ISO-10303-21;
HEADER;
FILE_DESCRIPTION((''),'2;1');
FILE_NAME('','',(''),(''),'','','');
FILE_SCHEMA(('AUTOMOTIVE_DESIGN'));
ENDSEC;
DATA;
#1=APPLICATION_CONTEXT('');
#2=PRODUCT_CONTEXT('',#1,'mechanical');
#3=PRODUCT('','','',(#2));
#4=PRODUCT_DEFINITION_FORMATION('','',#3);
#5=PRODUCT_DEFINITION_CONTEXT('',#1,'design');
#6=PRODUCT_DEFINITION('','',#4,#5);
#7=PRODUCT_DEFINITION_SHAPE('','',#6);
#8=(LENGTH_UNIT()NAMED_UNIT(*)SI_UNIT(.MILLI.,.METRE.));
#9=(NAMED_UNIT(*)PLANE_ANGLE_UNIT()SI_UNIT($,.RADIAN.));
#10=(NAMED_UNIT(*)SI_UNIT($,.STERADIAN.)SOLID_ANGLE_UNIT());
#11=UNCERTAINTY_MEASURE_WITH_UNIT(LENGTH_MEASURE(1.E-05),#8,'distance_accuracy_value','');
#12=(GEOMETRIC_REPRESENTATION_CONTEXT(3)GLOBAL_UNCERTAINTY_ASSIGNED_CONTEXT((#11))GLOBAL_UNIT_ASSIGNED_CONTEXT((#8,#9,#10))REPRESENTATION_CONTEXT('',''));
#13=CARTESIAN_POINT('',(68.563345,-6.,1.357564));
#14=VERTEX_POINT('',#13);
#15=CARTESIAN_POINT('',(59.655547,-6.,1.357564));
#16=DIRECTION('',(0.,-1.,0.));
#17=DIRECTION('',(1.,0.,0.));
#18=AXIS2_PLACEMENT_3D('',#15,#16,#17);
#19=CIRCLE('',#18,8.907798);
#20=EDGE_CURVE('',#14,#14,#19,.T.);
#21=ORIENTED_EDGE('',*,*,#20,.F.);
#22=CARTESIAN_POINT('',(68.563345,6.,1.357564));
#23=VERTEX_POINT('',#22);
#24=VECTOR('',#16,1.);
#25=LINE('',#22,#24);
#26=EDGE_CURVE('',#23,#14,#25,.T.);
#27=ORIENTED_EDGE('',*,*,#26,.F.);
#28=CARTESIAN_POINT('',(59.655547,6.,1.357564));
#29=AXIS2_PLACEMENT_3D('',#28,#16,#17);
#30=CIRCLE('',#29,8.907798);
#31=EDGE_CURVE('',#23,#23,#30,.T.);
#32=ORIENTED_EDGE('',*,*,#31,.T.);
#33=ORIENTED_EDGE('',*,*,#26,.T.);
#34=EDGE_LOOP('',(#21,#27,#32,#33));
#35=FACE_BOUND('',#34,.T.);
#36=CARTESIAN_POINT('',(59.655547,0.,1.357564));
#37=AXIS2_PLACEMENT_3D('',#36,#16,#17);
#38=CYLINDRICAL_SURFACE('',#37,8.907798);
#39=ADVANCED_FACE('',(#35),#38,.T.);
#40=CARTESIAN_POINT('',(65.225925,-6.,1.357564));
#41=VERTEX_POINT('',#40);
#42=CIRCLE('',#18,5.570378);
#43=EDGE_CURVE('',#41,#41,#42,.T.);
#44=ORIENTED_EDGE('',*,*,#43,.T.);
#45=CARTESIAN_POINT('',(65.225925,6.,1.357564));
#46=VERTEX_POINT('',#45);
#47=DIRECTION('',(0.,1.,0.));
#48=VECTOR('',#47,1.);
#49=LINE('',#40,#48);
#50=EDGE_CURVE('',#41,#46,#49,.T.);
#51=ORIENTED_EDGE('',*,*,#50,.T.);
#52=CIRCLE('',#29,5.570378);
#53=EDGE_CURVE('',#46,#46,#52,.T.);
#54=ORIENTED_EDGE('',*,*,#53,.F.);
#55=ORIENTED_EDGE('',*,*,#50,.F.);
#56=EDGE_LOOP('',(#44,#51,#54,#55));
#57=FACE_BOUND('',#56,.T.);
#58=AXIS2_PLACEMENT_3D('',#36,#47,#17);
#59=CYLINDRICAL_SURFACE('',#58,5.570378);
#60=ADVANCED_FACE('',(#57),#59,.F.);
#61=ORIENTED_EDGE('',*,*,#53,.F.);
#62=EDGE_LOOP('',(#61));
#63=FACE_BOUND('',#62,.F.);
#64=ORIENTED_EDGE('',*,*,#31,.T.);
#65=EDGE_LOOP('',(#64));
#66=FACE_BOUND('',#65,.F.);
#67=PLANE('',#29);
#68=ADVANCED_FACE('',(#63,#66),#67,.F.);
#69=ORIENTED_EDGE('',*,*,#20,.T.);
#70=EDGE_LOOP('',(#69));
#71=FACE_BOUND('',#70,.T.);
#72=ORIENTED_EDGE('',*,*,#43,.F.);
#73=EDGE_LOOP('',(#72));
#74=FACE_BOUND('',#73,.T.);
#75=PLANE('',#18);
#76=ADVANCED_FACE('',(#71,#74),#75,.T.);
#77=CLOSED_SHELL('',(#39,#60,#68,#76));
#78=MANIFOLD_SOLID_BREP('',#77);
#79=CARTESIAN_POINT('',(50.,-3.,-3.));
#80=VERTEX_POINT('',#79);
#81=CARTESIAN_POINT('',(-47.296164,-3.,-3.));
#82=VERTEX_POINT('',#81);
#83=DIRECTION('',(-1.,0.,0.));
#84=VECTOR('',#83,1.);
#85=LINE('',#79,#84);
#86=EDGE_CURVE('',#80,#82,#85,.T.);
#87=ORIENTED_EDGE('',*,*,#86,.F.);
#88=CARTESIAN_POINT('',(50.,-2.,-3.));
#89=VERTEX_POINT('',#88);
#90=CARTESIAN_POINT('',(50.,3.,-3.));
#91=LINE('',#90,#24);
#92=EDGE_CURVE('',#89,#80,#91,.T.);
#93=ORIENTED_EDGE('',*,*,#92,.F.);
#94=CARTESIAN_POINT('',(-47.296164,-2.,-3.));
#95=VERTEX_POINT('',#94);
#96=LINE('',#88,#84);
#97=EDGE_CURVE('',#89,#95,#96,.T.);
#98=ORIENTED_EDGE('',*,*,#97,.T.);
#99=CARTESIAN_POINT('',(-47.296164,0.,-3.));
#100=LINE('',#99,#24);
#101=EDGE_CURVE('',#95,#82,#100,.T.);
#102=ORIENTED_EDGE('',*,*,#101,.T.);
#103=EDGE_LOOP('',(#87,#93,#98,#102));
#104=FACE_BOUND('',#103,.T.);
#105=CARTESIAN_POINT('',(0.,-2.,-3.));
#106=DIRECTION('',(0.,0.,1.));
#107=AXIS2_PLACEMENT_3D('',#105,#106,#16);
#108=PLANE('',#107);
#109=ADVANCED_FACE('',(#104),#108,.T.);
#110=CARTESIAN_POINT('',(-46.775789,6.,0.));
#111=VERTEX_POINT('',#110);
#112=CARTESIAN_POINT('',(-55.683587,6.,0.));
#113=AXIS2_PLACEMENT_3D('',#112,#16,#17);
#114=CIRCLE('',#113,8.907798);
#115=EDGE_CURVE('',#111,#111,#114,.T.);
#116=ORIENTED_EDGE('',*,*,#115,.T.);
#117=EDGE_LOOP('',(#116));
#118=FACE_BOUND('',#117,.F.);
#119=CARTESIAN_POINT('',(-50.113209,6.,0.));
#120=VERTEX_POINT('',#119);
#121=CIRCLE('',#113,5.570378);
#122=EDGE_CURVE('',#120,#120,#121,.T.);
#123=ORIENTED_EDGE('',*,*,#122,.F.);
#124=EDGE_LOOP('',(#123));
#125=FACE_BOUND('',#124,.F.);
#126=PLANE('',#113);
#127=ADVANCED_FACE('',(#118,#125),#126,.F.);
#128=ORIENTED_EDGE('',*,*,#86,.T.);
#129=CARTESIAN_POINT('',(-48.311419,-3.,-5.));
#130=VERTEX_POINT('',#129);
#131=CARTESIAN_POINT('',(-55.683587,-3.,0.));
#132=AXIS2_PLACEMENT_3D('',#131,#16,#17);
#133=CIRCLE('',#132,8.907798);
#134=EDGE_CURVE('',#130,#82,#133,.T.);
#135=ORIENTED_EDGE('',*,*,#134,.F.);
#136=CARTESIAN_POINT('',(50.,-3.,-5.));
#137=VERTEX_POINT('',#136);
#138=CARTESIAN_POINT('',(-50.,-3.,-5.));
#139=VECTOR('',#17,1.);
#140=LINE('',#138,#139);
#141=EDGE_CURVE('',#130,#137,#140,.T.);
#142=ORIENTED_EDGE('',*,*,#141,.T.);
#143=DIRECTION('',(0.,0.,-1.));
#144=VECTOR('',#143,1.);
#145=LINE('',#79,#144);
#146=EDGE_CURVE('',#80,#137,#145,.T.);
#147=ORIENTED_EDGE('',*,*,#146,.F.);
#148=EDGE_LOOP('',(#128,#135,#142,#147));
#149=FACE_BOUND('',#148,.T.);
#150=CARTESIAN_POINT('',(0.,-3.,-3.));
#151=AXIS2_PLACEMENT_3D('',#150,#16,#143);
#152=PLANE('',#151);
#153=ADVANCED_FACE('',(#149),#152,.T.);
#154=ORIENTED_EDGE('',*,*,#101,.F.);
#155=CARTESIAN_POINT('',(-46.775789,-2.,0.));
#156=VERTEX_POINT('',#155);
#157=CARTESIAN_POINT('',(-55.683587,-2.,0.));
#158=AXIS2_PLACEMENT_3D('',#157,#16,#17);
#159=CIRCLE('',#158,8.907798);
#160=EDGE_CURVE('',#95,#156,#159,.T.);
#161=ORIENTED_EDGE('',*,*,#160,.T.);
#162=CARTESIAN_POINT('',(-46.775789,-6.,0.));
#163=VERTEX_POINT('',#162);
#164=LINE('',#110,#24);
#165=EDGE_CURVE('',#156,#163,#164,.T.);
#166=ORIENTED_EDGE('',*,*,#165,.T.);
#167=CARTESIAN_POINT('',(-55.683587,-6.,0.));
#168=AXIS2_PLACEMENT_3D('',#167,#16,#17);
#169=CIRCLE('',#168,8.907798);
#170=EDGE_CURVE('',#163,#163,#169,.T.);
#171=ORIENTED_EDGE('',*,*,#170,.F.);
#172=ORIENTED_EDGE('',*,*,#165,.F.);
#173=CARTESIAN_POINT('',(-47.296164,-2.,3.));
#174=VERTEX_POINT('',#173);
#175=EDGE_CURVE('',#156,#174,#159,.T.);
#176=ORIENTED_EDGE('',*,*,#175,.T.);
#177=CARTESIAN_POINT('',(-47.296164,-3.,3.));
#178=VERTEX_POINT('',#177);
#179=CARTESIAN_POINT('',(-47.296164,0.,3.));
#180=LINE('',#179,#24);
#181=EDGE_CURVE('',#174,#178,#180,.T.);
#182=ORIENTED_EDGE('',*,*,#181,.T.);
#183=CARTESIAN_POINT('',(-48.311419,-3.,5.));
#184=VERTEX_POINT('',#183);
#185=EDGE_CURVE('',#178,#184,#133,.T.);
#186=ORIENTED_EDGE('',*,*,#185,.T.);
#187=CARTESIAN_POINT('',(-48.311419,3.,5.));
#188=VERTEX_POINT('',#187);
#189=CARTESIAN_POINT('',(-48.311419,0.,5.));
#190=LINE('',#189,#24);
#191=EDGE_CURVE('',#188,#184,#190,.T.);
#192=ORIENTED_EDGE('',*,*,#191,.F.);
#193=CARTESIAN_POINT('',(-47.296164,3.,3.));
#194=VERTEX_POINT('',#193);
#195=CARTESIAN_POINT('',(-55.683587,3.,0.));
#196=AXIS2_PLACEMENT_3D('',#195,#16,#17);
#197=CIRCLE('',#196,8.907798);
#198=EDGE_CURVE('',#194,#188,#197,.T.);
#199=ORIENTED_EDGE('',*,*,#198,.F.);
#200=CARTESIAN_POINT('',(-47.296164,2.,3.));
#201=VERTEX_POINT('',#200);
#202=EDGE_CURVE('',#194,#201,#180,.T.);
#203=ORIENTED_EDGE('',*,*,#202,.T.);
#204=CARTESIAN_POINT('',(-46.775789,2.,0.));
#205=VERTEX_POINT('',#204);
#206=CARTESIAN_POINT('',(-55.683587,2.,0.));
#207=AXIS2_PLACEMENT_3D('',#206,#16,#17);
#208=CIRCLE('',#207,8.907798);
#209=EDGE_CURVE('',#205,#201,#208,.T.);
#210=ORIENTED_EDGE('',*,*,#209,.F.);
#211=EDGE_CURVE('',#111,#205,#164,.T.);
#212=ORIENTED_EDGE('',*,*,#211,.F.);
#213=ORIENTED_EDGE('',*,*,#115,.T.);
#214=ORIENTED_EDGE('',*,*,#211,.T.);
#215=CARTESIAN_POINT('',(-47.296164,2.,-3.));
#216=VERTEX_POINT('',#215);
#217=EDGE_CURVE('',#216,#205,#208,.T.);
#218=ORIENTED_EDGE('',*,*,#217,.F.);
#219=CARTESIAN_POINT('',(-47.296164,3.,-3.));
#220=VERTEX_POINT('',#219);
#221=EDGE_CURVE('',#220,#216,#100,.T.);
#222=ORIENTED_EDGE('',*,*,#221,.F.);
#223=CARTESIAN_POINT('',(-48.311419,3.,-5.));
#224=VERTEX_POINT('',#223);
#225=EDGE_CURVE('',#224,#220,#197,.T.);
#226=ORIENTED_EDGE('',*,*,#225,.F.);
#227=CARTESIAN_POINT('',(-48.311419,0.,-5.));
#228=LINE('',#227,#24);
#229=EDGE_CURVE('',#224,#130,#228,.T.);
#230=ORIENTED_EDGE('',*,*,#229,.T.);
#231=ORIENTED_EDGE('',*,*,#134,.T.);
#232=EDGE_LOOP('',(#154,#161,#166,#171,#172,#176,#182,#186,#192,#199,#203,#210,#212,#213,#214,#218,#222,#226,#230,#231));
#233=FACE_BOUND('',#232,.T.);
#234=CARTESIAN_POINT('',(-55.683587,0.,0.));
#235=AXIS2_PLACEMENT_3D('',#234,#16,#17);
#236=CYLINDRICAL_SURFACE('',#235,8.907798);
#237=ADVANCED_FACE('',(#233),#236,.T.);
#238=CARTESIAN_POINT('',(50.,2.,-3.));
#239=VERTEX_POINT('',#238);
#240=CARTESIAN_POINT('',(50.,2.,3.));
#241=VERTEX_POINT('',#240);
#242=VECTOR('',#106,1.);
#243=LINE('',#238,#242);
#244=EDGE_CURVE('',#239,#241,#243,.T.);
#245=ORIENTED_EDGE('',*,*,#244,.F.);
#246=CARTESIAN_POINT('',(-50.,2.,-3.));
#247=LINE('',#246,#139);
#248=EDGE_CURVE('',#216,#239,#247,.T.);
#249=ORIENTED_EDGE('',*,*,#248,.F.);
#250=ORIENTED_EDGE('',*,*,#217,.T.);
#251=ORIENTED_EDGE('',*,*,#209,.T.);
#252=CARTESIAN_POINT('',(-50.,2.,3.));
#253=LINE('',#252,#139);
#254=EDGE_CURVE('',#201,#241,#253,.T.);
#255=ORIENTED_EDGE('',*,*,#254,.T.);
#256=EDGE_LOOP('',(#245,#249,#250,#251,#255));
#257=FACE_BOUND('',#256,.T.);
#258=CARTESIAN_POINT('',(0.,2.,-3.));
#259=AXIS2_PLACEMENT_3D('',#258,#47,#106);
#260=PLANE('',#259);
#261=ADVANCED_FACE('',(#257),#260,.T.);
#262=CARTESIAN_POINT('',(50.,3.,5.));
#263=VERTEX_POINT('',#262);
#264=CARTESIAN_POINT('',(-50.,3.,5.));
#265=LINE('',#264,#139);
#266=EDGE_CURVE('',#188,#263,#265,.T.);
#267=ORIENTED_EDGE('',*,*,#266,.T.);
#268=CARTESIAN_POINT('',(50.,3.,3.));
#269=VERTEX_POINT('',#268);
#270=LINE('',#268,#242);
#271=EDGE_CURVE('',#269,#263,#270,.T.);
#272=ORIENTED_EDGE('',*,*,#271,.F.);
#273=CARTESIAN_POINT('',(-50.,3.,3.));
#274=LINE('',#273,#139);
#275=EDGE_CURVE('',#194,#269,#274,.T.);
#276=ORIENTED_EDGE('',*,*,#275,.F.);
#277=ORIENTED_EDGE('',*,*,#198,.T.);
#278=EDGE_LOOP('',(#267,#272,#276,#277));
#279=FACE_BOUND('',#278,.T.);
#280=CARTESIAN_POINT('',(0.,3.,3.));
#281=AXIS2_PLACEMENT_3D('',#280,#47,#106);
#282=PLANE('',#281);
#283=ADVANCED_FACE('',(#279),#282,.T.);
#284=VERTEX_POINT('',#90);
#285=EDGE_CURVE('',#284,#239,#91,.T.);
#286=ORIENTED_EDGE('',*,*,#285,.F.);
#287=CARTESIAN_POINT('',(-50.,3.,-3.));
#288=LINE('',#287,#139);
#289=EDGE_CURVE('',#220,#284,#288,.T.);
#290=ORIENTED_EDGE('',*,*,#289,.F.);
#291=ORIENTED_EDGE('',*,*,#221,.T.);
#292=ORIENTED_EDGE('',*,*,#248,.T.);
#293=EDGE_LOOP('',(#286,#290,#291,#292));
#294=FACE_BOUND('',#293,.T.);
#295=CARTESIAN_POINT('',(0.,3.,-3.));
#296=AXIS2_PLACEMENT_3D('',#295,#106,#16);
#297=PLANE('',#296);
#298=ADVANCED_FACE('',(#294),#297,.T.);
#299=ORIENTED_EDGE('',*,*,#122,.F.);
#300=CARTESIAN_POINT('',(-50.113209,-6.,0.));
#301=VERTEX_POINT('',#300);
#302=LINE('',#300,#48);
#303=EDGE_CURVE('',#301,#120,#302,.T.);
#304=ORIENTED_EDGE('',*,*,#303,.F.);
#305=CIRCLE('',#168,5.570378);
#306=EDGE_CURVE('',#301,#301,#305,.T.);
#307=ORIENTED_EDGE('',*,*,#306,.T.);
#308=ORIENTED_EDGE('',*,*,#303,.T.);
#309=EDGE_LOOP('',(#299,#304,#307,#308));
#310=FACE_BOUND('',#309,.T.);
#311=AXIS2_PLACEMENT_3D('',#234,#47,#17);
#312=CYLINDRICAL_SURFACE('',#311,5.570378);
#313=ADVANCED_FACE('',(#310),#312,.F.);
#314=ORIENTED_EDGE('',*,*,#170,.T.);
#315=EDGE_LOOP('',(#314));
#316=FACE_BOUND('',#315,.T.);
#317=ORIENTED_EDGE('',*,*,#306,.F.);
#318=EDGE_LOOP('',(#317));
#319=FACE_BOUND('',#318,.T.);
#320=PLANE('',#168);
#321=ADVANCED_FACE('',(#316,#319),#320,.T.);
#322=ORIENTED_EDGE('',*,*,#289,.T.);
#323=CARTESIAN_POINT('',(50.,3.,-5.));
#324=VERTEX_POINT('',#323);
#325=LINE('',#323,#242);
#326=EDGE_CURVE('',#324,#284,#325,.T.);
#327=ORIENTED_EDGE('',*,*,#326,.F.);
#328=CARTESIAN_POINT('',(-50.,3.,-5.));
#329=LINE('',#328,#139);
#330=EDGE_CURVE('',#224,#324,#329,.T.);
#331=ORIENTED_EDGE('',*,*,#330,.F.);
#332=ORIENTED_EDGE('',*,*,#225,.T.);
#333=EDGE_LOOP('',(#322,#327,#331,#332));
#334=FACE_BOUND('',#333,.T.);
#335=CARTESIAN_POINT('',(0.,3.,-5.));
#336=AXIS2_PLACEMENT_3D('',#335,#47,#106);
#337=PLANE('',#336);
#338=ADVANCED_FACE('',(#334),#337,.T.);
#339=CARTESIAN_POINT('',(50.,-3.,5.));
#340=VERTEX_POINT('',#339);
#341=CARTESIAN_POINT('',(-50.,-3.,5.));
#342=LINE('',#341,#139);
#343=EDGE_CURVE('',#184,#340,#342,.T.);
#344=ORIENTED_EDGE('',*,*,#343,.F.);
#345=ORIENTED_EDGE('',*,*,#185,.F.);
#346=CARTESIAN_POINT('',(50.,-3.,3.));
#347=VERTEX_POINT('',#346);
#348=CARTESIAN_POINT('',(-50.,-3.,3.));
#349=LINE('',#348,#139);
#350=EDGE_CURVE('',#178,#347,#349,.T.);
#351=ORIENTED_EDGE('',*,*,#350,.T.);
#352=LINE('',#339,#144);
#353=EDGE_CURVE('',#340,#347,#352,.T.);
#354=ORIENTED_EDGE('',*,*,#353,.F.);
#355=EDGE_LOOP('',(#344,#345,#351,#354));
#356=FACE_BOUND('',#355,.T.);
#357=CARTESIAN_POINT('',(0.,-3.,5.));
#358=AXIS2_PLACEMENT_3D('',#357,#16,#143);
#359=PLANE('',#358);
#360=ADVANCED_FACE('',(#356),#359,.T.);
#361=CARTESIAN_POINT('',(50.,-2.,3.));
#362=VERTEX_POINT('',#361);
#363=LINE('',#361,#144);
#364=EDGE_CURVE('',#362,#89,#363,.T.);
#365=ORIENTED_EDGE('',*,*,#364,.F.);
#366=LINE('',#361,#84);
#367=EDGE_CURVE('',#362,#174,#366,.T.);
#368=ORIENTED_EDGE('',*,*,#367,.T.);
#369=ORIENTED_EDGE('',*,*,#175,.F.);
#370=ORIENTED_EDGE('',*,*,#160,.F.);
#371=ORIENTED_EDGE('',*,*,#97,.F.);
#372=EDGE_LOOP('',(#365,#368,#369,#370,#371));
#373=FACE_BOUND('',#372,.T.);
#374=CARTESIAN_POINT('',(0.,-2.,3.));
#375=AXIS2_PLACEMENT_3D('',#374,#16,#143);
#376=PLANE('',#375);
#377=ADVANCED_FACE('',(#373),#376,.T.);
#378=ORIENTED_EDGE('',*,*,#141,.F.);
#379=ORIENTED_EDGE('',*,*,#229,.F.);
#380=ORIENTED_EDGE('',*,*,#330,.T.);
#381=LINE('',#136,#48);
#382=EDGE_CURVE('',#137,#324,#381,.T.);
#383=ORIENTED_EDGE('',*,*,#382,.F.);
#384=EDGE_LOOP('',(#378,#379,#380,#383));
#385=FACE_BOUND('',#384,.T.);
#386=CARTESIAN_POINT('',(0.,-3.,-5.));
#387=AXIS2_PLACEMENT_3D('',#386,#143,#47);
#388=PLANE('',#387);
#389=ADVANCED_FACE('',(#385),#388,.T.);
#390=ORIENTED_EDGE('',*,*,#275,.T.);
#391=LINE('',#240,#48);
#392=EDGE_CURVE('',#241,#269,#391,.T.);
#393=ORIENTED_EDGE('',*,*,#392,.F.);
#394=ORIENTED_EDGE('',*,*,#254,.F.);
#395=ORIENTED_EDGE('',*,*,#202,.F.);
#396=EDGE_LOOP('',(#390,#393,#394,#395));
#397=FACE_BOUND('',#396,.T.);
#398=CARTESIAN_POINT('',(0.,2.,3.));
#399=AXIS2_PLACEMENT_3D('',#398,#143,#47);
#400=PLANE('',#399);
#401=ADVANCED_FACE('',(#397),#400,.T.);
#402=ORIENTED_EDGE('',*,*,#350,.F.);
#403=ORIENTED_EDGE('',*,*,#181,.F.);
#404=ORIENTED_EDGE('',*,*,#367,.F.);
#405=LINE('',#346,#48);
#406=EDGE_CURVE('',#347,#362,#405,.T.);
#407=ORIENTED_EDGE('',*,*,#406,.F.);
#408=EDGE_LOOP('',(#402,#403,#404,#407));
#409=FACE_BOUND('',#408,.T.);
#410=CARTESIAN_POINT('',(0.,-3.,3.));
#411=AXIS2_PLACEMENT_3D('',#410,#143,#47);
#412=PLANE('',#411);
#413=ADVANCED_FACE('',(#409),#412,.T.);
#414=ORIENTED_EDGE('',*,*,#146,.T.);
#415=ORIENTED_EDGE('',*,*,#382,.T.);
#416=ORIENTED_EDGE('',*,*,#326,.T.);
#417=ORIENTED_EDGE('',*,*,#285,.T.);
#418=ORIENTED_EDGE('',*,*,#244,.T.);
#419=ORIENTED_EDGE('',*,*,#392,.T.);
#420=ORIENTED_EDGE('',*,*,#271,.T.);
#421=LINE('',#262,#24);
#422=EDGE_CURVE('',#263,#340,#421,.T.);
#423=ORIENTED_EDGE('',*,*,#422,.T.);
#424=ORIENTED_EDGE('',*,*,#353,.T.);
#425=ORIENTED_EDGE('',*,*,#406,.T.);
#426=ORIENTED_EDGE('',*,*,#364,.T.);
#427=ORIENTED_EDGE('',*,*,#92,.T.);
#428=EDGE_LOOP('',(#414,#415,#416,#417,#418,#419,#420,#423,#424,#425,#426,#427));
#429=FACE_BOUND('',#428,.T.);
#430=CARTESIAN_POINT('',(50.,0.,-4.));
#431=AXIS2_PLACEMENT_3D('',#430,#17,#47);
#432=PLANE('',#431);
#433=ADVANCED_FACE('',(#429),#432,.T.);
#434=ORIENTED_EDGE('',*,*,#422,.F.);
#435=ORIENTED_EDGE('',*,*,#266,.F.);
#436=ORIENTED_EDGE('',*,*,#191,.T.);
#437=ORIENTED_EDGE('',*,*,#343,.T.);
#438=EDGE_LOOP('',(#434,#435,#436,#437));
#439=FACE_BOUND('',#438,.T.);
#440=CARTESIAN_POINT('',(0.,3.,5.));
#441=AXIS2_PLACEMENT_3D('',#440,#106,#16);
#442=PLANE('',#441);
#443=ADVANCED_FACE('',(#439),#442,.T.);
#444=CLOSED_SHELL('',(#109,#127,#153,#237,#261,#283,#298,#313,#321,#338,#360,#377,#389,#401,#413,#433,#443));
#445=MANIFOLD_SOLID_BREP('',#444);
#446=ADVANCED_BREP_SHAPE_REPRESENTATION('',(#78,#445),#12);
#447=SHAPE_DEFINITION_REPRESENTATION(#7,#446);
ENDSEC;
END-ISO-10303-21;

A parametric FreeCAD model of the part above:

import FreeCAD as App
import Part
import Sketcher
from FreeCAD import Vector
Q = App.Units.Quantity

doc = App.newDocument("Part")
params = doc.addObject("Spreadsheet::Sheet", "Params")
for row, (alias, value) in enumerate([
    ("sketch1_width", "6 mm"),
    ("sketch1_width2", "1 mm"),
    ("sketch1_height", "2 mm"),
    ("pad1_length", "100 mm"),
    ("pad2_length", "12 mm"),
    ("pad3_length", "12 mm"),
], start=1):
    params.set(f"A{row}", alias)
    params.set(f"B{row}", "=" + value)
    params.setAlias(f"B{row}", alias)

body = doc.addObject("PartDesign::Body", "Body")

# Sketch on YZ plane
sketch1 = body.newObject("Sketcher::SketchObject", "Sketch")
sketch1.AttachmentSupport = (doc.getObject("YZ_Plane"), [""])
sketch1.MapMode = "FlatFace"
sketch1.addGeometry([
    Part.LineSegment(Vector(-3, -3, 0), Vector(-3, -5, 0)),  # 0
    Part.LineSegment(Vector(-3, -5, 0), Vector(3, -5, 0)),  # 1
    Part.LineSegment(Vector(3, -5, 0), Vector(3, -3, 0)),  # 2
    Part.LineSegment(Vector(3, -3, 0), Vector(2, -3, 0)),  # 3
    Part.LineSegment(Vector(2, -3, 0), Vector(2, 3, 0)),  # 4
    Part.LineSegment(Vector(2, 3, 0), Vector(3, 3, 0)),  # 5
    Part.LineSegment(Vector(3, 3, 0), Vector(3, 5, 0)),  # 6
    Part.LineSegment(Vector(3, 5, 0), Vector(-3, 5, 0)),  # 7
    Part.LineSegment(Vector(-3, 5, 0), Vector(-3, 3, 0)),  # 8
    Part.LineSegment(Vector(-3, 3, 0), Vector(-2, 3, 0)),  # 9
    Part.LineSegment(Vector(-2, 3, 0), Vector(-2, -3, 0)),  # 10
    Part.LineSegment(Vector(-2, -3, 0), Vector(-3, -3, 0)),  # 11
], False)
sketch1.addConstraint([
    Sketcher.Constraint("Coincident", 0, 2, 1, 1),
    Sketcher.Constraint("Coincident", 1, 2, 2, 1),
    Sketcher.Constraint("Coincident", 2, 2, 3, 1),
    Sketcher.Constraint("Coincident", 3, 2, 4, 1),
    Sketcher.Constraint("Coincident", 4, 2, 5, 1),
    Sketcher.Constraint("Coincident", 5, 2, 6, 1),
    Sketcher.Constraint("Coincident", 6, 2, 7, 1),
    Sketcher.Constraint("Coincident", 7, 2, 8, 1),
    Sketcher.Constraint("Coincident", 8, 2, 9, 1),
    Sketcher.Constraint("Coincident", 9, 2, 10, 1),
    Sketcher.Constraint("Coincident", 10, 2, 11, 1),
    Sketcher.Constraint("Coincident", 11, 2, 0, 1),
    Sketcher.Constraint("Vertical", 0),
    Sketcher.Constraint("Horizontal", 1),
    Sketcher.Constraint("Vertical", 2),
    Sketcher.Constraint("Horizontal", 3),
    Sketcher.Constraint("Vertical", 4),
    Sketcher.Constraint("Horizontal", 5),
    Sketcher.Constraint("Vertical", 6),
    Sketcher.Constraint("Horizontal", 7),
    Sketcher.Constraint("Vertical", 8),
    Sketcher.Constraint("Horizontal", 9),
    Sketcher.Constraint("Vertical", 10),
    Sketcher.Constraint("Horizontal", 11),
    Sketcher.Constraint("Symmetric", 0, 2, 6, 2, -1, 1),
    Sketcher.Constraint("Symmetric", 2, 2, 8, 2, -1, 1),
    Sketcher.Constraint("Symmetric", 4, 2, 10, 2, -1, 1),
    Sketcher.Constraint("Symmetric", 5, 2, 8, 2, -2),
    Sketcher.Constraint("Equal", 7, 4),
    Sketcher.Constraint("DistanceX", 1, 1, 1, 2, Q("6 mm")),
    Sketcher.Constraint("DistanceX", 3, 2, 3, 1, Q("1 mm")),
    Sketcher.Constraint("DistanceY", 0, 2, 0, 1, Q("2 mm")),
])
sketch1.setExpression("Constraints[29]", "Params.sketch1_width")
sketch1.setExpression("Constraints[30]", "Params.sketch1_width2")
sketch1.setExpression("Constraints[31]", "Params.sketch1_height")
pad1 = body.newObject("PartDesign::Pad", "Pad")
pad1.Profile = sketch1
pad1.setExpression("Length", "Params.pad1_length")
pad1.Midplane = True

# Sketch on XZ plane
sketch2 = body.newObject("Sketcher::SketchObject", "Sketch001")
sketch2.AttachmentSupport = (doc.getObject("XZ_Plane"), [""])
sketch2.MapMode = "FlatFace"
sketch2.addGeometry([
    Part.Circle(Vector(-55.683587, 0, 0), Vector(0, 0, 1), 8.907798),
    Part.Circle(Vector(-55.683587, 0, 0), Vector(0, 0, 1), 5.570378),
], False)
sketch2.addConstraint([
    Sketcher.Constraint("Coincident", 1, 3, 0, 3),
    Sketcher.Constraint("PointOnObject", 0, 3, -1),
    Sketcher.Constraint("Diameter", 0, Q("17.815596 mm")),
    Sketcher.Constraint("Diameter", 1, Q("11.140756 mm")),
    Sketcher.Constraint("DistanceX", 0, 3, -1, 1, Q("55.683587 mm")),
])
pad2 = body.newObject("PartDesign::Pad", "Pad001")
pad2.Profile = sketch2
pad2.setExpression("Length", "Params.pad2_length")
pad2.Midplane = True
body2 = doc.addObject("PartDesign::Body", "Body001")

# Sketch on XZ plane
sketch3 = body2.newObject("Sketcher::SketchObject", "Sketch002")
sketch3.AttachmentSupport = (doc.getObject("XZ_Plane001"), [""])
sketch3.MapMode = "FlatFace"
sketch3.addGeometry([
    Part.Circle(Vector(59.655547, 1.357564, 0), Vector(0, 0, 1), 8.907798),
    Part.Circle(Vector(59.655547, 1.357564, 0), Vector(0, 0, 1), 5.570378),
], False)
sketch3.addConstraint([
    Sketcher.Constraint("Coincident", 1, 3, 0, 3),
    Sketcher.Constraint("Diameter", 0, Q("17.815596 mm")),
    Sketcher.Constraint("Diameter", 1, Q("11.140756 mm")),
    Sketcher.Constraint("DistanceX", -1, 1, 0, 3, Q("59.655547 mm")),
    Sketcher.Constraint("DistanceY", -1, 1, 0, 3, Q("1.357564 mm")),
])
pad3 = body2.newObject("PartDesign::Pad", "Pad002")
pad3.Profile = sketch3
pad3.setExpression("Length", "Params.pad3_length")
pad3.Midplane = True

doc.recompute()
